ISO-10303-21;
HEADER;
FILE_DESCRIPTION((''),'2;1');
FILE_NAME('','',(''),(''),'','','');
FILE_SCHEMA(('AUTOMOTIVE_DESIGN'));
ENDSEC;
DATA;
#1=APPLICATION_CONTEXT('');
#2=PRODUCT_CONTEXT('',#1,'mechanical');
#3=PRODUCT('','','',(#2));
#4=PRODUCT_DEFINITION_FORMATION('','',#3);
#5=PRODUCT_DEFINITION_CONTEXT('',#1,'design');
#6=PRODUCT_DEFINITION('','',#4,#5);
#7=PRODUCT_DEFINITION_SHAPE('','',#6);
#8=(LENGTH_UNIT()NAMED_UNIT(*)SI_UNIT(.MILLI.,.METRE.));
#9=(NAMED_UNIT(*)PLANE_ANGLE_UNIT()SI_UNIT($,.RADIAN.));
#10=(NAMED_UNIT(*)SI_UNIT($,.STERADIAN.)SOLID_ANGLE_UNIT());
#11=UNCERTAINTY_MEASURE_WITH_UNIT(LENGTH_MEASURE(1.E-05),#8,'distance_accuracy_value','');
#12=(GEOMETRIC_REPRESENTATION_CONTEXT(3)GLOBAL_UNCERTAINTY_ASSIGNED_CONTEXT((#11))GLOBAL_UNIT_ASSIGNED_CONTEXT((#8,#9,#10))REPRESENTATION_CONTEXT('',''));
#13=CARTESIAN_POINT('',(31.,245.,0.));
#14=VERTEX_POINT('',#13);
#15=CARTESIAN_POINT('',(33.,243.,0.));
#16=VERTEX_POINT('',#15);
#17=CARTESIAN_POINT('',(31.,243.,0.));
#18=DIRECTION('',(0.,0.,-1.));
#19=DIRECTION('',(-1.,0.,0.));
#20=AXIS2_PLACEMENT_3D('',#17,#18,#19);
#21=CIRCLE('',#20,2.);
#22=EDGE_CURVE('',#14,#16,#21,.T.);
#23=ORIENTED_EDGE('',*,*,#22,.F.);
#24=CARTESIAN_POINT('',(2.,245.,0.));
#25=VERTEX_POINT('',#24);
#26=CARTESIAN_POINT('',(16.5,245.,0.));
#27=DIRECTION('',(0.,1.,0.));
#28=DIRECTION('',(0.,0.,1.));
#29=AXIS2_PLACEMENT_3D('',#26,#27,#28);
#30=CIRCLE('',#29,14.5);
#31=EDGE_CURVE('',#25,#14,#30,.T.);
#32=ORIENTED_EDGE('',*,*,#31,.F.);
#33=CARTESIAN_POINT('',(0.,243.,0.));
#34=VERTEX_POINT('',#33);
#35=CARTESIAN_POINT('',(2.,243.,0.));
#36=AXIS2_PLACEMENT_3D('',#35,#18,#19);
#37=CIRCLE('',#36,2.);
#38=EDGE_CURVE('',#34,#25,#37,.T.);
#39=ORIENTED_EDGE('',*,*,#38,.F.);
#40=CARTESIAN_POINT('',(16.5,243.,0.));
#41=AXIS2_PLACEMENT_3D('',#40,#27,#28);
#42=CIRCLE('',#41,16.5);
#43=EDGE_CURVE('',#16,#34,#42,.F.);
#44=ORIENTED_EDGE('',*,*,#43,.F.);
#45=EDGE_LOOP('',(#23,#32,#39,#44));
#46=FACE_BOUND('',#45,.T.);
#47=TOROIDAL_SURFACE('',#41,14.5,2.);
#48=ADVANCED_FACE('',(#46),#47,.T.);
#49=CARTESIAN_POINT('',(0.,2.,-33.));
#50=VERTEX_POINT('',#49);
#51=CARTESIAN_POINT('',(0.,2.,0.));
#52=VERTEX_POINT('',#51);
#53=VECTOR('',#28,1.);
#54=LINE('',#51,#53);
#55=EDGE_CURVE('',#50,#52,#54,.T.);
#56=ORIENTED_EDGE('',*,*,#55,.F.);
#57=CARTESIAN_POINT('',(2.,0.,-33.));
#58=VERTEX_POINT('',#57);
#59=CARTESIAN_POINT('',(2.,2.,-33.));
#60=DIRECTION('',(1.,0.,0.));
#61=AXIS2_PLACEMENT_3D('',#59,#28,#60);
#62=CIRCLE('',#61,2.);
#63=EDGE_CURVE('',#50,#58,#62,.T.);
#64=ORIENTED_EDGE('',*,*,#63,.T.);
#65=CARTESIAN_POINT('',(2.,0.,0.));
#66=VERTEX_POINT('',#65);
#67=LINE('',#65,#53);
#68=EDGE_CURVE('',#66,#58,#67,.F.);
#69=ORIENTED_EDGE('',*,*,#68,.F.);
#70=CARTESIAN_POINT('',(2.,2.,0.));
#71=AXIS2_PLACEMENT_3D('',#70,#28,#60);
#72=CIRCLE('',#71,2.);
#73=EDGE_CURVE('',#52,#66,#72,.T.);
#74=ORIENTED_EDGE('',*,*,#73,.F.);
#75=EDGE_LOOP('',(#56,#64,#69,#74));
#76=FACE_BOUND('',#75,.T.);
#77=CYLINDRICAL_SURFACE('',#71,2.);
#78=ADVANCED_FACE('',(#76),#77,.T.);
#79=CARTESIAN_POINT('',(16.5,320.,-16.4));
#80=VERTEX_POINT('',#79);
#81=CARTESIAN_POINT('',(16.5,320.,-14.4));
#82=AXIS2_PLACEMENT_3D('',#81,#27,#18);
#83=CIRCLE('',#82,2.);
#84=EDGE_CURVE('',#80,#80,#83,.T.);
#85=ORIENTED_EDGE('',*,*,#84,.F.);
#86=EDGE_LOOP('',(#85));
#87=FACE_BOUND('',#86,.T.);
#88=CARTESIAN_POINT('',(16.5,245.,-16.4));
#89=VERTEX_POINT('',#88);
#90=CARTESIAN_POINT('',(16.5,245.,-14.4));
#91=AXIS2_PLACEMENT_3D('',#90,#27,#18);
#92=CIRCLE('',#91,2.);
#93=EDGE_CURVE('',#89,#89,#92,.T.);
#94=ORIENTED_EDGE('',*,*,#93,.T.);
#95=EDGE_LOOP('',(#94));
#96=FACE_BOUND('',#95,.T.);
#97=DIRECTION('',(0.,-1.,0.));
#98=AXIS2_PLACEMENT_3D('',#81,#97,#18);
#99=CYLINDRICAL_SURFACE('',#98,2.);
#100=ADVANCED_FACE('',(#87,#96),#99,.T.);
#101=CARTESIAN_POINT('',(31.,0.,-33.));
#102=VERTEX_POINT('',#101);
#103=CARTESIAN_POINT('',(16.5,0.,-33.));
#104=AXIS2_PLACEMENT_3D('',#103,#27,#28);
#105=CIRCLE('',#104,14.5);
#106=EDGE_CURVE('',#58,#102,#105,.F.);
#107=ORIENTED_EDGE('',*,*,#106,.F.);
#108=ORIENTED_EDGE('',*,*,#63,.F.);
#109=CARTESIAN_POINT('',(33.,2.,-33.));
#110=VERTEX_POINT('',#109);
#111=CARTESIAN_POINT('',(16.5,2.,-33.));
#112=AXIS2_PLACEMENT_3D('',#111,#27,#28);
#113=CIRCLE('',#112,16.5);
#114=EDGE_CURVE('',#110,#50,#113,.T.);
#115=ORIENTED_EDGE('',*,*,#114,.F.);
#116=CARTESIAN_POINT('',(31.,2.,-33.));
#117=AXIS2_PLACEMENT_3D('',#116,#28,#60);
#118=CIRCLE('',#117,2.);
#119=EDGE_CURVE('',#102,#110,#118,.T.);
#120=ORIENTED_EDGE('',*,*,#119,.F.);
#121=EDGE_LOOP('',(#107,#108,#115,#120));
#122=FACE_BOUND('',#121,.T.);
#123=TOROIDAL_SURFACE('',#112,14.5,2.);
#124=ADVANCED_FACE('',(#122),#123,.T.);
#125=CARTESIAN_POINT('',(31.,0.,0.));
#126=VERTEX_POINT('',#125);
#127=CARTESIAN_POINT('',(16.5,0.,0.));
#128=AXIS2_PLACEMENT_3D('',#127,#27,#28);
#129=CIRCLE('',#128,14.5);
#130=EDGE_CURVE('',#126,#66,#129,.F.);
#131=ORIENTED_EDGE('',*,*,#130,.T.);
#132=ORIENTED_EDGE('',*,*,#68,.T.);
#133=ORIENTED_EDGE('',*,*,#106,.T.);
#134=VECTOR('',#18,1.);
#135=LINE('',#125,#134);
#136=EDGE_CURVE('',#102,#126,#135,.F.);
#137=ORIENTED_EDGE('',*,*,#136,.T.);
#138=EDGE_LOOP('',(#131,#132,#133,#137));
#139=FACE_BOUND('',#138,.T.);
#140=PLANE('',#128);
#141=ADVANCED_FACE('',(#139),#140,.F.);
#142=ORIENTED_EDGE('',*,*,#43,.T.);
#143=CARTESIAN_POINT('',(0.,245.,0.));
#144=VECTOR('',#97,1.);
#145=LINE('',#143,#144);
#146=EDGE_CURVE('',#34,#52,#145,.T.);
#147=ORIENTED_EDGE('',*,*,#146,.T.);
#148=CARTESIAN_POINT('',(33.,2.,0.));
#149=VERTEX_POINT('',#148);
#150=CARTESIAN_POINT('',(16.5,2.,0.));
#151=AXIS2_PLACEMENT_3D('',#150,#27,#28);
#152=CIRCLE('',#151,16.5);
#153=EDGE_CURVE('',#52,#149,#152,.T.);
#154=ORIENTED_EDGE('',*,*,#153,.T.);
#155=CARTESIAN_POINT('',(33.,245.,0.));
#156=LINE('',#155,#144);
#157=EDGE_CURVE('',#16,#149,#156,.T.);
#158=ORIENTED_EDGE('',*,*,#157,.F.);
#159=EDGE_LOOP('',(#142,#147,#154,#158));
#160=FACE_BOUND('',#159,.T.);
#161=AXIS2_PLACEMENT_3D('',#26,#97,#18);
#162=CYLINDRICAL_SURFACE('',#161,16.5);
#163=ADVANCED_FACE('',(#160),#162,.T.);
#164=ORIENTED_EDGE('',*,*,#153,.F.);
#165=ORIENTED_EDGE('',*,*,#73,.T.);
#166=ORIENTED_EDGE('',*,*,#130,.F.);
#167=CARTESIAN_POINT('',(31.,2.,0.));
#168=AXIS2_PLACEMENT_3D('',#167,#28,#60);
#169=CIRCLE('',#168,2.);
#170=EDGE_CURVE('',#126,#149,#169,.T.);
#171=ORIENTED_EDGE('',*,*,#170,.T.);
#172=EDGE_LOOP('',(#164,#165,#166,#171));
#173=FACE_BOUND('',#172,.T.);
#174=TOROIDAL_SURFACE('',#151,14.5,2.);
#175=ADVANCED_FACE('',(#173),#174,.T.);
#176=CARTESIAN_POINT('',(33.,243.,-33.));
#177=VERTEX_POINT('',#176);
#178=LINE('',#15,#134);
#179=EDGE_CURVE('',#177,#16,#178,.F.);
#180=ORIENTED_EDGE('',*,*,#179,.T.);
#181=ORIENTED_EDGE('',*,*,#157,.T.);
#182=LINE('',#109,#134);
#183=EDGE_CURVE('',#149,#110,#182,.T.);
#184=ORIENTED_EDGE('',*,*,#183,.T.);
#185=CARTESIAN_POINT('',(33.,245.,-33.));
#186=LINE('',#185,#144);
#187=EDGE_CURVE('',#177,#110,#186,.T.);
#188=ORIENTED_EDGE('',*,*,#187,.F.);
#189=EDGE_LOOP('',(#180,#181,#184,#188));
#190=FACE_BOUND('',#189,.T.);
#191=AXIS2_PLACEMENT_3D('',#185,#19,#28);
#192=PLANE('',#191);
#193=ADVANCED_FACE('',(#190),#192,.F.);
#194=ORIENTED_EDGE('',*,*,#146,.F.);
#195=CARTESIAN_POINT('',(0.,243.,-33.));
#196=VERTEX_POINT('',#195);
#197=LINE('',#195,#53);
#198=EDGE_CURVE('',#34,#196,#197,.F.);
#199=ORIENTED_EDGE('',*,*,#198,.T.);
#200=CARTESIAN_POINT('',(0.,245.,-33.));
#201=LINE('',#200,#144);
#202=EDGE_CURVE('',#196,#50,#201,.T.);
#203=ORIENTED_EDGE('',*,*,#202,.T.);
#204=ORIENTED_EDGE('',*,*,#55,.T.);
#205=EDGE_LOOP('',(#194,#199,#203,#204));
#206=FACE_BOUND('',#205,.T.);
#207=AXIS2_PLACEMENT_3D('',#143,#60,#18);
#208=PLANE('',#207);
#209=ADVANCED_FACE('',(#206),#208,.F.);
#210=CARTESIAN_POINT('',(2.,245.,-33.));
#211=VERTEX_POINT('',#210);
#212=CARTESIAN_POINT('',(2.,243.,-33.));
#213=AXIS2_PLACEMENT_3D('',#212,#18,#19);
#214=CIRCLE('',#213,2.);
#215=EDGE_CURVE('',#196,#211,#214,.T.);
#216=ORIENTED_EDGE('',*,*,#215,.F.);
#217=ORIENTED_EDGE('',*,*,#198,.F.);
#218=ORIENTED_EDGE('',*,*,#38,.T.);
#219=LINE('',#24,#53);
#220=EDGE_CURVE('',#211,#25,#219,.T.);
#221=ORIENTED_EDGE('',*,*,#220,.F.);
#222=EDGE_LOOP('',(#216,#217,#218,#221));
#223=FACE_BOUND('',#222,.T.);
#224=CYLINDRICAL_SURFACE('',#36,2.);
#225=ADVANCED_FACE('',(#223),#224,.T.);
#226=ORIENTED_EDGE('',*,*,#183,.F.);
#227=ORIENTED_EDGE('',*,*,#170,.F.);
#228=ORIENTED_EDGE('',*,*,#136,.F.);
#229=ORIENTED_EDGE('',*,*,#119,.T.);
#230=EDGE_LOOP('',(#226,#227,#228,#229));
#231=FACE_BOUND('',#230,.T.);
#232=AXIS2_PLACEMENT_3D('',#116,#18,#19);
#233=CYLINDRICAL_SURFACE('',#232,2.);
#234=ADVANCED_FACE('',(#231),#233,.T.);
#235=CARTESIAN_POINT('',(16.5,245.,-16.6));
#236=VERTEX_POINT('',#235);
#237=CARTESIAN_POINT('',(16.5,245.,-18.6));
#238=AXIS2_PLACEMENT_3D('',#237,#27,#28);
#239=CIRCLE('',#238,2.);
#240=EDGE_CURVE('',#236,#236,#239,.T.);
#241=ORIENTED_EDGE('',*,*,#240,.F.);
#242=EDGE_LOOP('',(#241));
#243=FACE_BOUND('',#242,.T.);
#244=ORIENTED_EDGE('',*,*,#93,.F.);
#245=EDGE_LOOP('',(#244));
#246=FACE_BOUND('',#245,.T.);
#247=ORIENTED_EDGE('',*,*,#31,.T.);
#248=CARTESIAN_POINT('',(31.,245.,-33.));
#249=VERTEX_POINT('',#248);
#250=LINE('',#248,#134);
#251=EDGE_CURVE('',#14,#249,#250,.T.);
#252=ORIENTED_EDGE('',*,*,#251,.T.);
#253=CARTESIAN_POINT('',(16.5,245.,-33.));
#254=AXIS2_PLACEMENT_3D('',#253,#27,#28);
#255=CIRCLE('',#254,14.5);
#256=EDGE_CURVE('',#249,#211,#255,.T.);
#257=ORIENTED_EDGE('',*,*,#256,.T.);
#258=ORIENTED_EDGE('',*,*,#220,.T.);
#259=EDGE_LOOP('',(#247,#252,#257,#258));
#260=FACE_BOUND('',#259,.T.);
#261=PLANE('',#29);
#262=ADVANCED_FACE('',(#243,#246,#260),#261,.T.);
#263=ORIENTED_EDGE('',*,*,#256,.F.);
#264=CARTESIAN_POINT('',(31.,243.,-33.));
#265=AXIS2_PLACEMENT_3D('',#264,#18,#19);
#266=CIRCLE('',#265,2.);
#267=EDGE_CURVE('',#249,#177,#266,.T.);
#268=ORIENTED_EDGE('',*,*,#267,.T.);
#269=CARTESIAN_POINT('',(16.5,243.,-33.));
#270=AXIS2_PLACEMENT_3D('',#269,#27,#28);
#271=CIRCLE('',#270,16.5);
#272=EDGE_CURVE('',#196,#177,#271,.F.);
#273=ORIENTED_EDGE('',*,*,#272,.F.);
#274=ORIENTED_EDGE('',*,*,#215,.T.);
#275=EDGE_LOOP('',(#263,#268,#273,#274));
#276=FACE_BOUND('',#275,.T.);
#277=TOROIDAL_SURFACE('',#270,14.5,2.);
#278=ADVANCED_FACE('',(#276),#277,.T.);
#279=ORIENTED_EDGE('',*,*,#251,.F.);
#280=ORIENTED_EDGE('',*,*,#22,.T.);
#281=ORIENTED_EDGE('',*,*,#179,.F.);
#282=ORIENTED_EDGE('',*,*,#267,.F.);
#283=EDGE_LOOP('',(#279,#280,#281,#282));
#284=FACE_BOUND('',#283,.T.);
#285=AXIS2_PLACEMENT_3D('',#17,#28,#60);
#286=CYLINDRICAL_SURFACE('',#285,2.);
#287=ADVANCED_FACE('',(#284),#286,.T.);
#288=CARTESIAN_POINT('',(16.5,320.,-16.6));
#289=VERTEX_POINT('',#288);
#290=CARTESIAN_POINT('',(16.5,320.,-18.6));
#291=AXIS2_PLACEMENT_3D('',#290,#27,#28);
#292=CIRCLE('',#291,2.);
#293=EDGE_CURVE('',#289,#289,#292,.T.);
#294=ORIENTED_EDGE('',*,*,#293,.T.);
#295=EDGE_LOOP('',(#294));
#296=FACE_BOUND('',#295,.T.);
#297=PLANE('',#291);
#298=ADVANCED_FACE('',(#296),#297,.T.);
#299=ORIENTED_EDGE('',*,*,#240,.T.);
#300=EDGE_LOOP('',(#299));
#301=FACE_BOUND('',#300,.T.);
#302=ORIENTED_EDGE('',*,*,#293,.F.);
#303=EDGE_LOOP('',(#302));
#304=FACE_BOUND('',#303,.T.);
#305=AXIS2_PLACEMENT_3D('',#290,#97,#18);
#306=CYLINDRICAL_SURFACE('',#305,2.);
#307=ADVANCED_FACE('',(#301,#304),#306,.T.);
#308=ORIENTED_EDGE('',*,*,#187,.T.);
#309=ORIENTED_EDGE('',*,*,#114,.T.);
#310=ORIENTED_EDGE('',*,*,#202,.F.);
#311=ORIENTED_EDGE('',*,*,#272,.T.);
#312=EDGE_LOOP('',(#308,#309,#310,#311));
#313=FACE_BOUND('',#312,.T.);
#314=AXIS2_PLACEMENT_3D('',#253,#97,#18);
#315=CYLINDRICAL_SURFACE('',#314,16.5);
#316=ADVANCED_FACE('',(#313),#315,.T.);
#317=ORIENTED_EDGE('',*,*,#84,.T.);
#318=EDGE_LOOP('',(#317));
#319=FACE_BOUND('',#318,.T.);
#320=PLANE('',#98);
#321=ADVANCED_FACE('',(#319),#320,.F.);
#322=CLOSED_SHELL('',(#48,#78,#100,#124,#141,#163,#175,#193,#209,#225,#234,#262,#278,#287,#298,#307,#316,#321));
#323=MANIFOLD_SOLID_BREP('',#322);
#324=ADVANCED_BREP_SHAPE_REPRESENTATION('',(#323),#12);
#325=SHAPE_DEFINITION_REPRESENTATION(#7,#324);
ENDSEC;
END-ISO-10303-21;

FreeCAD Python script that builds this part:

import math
import FreeCAD as App
import Part
import Sketcher


def edges_at(feature, points):
    """Names of the edges that pass closest to the given points."""
    edges = feature.Shape.Edges
    near = lambda p: min(range(len(edges)), key=lambda i: edges[i].distToShape(Part.Vertex(*p))[0])
    return sorted({f"Edge{near(p) + 1}" for p in points})

doc = App.newDocument("Part")
body = doc.addObject("PartDesign::Body", "Body")

# Sketch on XZ plane
sketch1 = doc.addObject("Sketcher::SketchObject", "Sketch")
body.addObject(sketch1)
sketch1.AttachmentSupport = (doc.XZ_Plane, [""])
sketch1.MapMode = "FlatFace"
sketch1.addGeometry(Part.LineSegment(App.Vector(0, -33, 0), App.Vector(0, 0, 0)), False)
sketch1.addGeometry(Part.ArcOfCircle(Part.Circle(App.Vector(16.5, 0, 0), App.Vector(0, 0, 1), 16.5), math.radians(0), math.radians(180)), False)
sketch1.addGeometry(Part.LineSegment(App.Vector(33, 0, 0), App.Vector(33, -33, 0)), False)
sketch1.addGeometry(Part.ArcOfCircle(Part.Circle(App.Vector(16.5, -33, 0), App.Vector(0, 0, 1), 16.5), math.radians(180), math.radians(360)), False)
sketch1.addConstraint(Sketcher.Constraint("Tangent", 0, 2, 1, 2))
sketch1.addConstraint(Sketcher.Constraint("Tangent", 1, 1, 2, 1))
sketch1.addConstraint(Sketcher.Constraint("Tangent", 2, 2, 3, 2))
sketch1.addConstraint(Sketcher.Constraint("Tangent", 3, 1, 0, 1))
sketch1.addConstraint(Sketcher.Constraint("Vertical", 0))
sketch1.addConstraint(Sketcher.Constraint("Vertical", 2))
sketch1.addConstraint(Sketcher.Constraint("Coincident", 0, 2, -1, 1))
sketch1.addConstraint(Sketcher.Constraint("Radius", 1, 16.5))
sketch1.addConstraint(Sketcher.Constraint("DistanceY", 0, 1, 0, 2, 33.0))
pad1 = doc.addObject("PartDesign::Pad", "Pad")
body.addObject(pad1)
pad1.Profile = sketch1
pad1.Length = 245
pad1.Reversed = True
doc.recompute()

fillet = doc.addObject("PartDesign::Fillet", "Fillet")
body.addObject(fillet)
fillet.Base = (pad1, edges_at(pad1, [
    (16.5, 245, -49.5),
    (0, 245, -16.5),
    (16.5, 245, 16.5),
    (0, 0, -16.5),
    (16.5, 0, -49.5),
    (33, 0, -16.5),
    (16.5, 0, 16.5),
    (33, 245, -16.5),
]))
fillet.Radius = 2

# Sketch on XZ plane
sketch2 = doc.addObject("Sketcher::SketchObject", "Sketch001")
body.addObject(sketch2)
sketch2.AttachmentSupport = (doc.XZ_Plane, [""])
sketch2.MapMode = "FlatFace"
sketch2.AttachmentOffset = App.Placement(App.Vector(0, 0, -245), App.Rotation())
sketch2.addGeometry(Part.Circle(App.Vector(16.5, -18.6, 0), App.Vector(0, 0, 1), 2), False)
sketch2.addGeometry(Part.Circle(App.Vector(16.5, -14.4, 0), App.Vector(0, 0, 1), 2), False)
sketch2.addConstraint(Sketcher.Constraint("Equal", 0, 1))
sketch2.addConstraint(Sketcher.Constraint("Vertical", 0, 3, 1, 3))
sketch2.addConstraint(Sketcher.Constraint("Diameter", 0, 4.0))
sketch2.addConstraint(Sketcher.Constraint("DistanceX", -1, 1, 0, 3, 16.5))
sketch2.addConstraint(Sketcher.Constraint("DistanceY", 0, 3, -1, 1, 18.6))
sketch2.addConstraint(Sketcher.Constraint("DistanceY", 1, 3, -1, 1, 14.4))
pad2 = doc.addObject("PartDesign::Pad", "Pad001")
body.addObject(pad2)
pad2.Profile = sketch2
pad2.Length = 75
pad2.Reversed = True

doc.recompute()
